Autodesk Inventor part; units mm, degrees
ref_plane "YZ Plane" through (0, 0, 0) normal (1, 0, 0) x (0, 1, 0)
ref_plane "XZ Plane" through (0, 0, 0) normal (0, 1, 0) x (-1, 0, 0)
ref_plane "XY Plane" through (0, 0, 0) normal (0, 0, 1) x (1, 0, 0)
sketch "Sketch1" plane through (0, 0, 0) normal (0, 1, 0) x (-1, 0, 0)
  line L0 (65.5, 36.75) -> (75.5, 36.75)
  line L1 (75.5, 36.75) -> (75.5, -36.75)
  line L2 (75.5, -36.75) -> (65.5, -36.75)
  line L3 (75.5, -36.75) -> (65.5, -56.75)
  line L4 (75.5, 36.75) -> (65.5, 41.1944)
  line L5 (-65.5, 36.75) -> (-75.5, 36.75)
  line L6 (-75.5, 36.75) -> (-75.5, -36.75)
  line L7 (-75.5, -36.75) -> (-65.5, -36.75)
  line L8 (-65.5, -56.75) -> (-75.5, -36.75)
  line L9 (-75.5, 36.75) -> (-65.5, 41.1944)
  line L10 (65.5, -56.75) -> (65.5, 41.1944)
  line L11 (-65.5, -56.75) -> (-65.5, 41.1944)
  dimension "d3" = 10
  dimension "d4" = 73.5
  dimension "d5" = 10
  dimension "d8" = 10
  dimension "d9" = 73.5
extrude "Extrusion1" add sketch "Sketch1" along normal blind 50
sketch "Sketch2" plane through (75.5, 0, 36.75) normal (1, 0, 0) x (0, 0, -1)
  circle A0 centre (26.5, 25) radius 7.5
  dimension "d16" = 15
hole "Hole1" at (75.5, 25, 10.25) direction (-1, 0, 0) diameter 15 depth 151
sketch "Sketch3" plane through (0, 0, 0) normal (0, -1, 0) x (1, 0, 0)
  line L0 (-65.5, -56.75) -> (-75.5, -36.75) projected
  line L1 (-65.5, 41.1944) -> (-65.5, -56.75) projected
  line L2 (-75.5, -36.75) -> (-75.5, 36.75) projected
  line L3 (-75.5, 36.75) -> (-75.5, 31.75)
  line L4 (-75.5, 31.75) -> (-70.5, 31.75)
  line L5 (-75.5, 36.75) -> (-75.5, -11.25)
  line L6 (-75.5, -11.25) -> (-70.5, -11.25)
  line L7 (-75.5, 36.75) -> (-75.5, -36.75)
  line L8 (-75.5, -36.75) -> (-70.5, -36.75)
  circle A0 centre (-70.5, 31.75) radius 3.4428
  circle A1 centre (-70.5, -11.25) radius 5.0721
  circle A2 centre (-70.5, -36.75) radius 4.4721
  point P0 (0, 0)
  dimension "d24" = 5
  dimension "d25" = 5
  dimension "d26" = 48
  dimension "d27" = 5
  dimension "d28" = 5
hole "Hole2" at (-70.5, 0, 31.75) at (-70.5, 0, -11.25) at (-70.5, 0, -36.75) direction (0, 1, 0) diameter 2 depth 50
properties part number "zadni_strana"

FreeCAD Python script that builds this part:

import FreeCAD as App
import Part
import Sketcher

V = App.Vector
Q = App.Units.Quantity


def add_polygon(sketch, points):
    """Adds a closed chain of lines whose ends are joined by coincident constraints."""
    first, n = sketch.GeometryCount, len(points)
    for a, b in zip(points, points[1:] + points[:1]):
        sketch.addGeometry(Part.LineSegment(App.Vector(*a, 0), App.Vector(*b, 0)), False)
    for i in range(n):
        sketch.addConstraint(Sketcher.Constraint("Coincident", first + i, 2, first + (i + 1) % n, 1))

doc = App.newDocument("Part")
params = doc.addObject("Spreadsheet::Sheet", "Params")
for row, (alias, value) in enumerate([
    ("sketch1_height", "73.5 mm"),
    ("pad1_length", "50 mm"),
    ("sketch2_diameter", "15 mm"),
    ("hole_diameter", "15 mm"),
    ("hole_depth", "151 mm"),
    ("sketch3_diameter", "2 mm"),
    ("hole2_diameter", "2 mm"),
    ("hole2_depth", "50 mm"),
], start=1):
    params.set(f"A{row}", alias)
    params.set(f"B{row}", "=" + value)
    params.setAlias(f"B{row}", alias)

body = doc.addObject("PartDesign::Body", "Body")
body.AllowCompound = True

# Sketch on XZ plane
sketch1 = doc.addObject("Sketcher::SketchObject", "Sketch")
body.addObject(sketch1)
sketch1.AttachmentSupport = (doc.XZ_Plane, [""])
sketch1.MapMode = "FlatFace"
add_polygon(sketch1, [(-65.5, 41.1944), (-65.5, -56.75), (-75.5, -36.75), (-75.5, 36.75)])  # lines 0-3
add_polygon(sketch1, [(65.5, 41.1944), (75.5, 36.75), (75.5, -36.75), (65.5, -56.75)])  # lines 4-7
sketch1.addConstraint([
    Sketcher.Constraint("Vertical", 0),
    Sketcher.Constraint("Vertical", 2),
    Sketcher.Constraint("Vertical", 5),
    Sketcher.Constraint("Vertical", 7),
    Sketcher.Constraint("Symmetric", 1, 2, 4, 2, -1, 1),
    Sketcher.Constraint("Symmetric", 0, 2, 6, 2, -2),
    Sketcher.Constraint("Horizontal", 2, 2, 4, 2),
    Sketcher.Constraint("Horizontal", 1, 2, 5, 2),
    Sketcher.Constraint("Horizontal", 3, 2, 7, 2),
    Sketcher.Constraint("DistanceY", 2, 1, 2, 2, Q("73.5 mm")),
    Sketcher.Constraint("DistanceX", 1, 2, 0, 2, Q("10 mm")),
    Sketcher.Constraint("DistanceY", 0, 2, 1, 2, Q("20 mm")),
    Sketcher.Constraint("DistanceX", 3, 2, 4, 2, Q("141 mm")),
    Sketcher.Constraint("DistanceY", 0, 2, 0, 1, Q("97.9444 mm")),
])
sketch1.setExpression("Constraints[17]", "Params.sketch1_height")
pad1 = doc.addObject("PartDesign::Pad", "Pad")
body.addObject(pad1)
pad1.Profile = sketch1
pad1.setExpression("Length", "Params.pad1_length")
pad1.Reversed = True

# Sketch on YZ plane
sketch2 = doc.addObject("Sketcher::SketchObject", "Sketch001")
body.addObject(sketch2)
sketch2.AttachmentSupport = (doc.YZ_Plane, [""])
sketch2.MapMode = "FlatFace"
sketch2.AttachmentOffset = App.Placement(V(0, 0, 75.5), App.Rotation())
sketch2.addGeometry(Part.Circle(V(25, 10.25, 0), V(0, 0, 1), 7.5), False)
sketch2.addConstraint([
    Sketcher.Constraint("Diameter", 0, Q("15 mm")),
    Sketcher.Constraint("DistanceX", -1, 1, 0, 3, Q("25 mm")),
    Sketcher.Constraint("DistanceY", -1, 1, 0, 3, Q("10.25 mm")),
])
sketch2.setExpression("Constraints[0]", "Params.sketch2_diameter")
doc.recompute()
hole = doc.addObject("PartDesign::Hole", "Hole")
body.addObject(hole)
hole.Profile = sketch2
hole.ThreadType = "None"
hole.setExpression("Diameter", "Params.hole_diameter")
hole.DepthType = "Dimension"
hole.setExpression("Depth", "Params.hole_depth")
hole.DrillPoint = "Flat"

# Sketch on XZ plane
sketch3 = doc.addObject("Sketcher::SketchObject", "Sketch002")
body.addObject(sketch3)
sketch3.AttachmentSupport = (doc.XZ_Plane, [""])
sketch3.MapMode = "FlatFace"
sketch3.addGeometry([
    Part.Circle(V(-70.5, 31.75, 0), V(0, 0, 1), 1),
    Part.Circle(V(-70.5, -11.25, 0), V(0, 0, 1), 1),
    Part.Circle(V(-70.5, -36.75, 0), V(0, 0, 1), 1),
], False)
sketch3.addConstraint([
    Sketcher.Constraint("Equal", 0, 1),
    Sketcher.Constraint("Equal", 1, 2),
    Sketcher.Constraint("Vertical", 0, 3, 1, 3),
    Sketcher.Constraint("Vertical", 1, 3, 2, 3),
    Sketcher.Constraint("Diameter", 0, Q("2 mm")),
    Sketcher.Constraint("DistanceY", 1, 3, 0, 3, Q("43 mm")),
    Sketcher.Constraint("DistanceX", 0, 3, -1, 1, Q("70.5 mm")),
    Sketcher.Constraint("DistanceY", 2, 3, 1, 3, Q("25.5 mm")),
    Sketcher.Constraint("DistanceY", -1, 1, 0, 3, Q("31.75 mm")),
])
sketch3.setExpression("Constraints[4]", "Params.sketch3_diameter")
doc.recompute()
hole2 = doc.addObject("PartDesign::Hole", "Hole001")
body.addObject(hole2)
hole2.Profile = sketch3
hole2.ThreadType = "None"
hole2.setExpression("Diameter", "Params.hole2_diameter")
hole2.DepthType = "Dimension"
hole2.setExpression("Depth", "Params.hole2_depth")
hole2.DrillPoint = "Flat"

doc.recompute()
